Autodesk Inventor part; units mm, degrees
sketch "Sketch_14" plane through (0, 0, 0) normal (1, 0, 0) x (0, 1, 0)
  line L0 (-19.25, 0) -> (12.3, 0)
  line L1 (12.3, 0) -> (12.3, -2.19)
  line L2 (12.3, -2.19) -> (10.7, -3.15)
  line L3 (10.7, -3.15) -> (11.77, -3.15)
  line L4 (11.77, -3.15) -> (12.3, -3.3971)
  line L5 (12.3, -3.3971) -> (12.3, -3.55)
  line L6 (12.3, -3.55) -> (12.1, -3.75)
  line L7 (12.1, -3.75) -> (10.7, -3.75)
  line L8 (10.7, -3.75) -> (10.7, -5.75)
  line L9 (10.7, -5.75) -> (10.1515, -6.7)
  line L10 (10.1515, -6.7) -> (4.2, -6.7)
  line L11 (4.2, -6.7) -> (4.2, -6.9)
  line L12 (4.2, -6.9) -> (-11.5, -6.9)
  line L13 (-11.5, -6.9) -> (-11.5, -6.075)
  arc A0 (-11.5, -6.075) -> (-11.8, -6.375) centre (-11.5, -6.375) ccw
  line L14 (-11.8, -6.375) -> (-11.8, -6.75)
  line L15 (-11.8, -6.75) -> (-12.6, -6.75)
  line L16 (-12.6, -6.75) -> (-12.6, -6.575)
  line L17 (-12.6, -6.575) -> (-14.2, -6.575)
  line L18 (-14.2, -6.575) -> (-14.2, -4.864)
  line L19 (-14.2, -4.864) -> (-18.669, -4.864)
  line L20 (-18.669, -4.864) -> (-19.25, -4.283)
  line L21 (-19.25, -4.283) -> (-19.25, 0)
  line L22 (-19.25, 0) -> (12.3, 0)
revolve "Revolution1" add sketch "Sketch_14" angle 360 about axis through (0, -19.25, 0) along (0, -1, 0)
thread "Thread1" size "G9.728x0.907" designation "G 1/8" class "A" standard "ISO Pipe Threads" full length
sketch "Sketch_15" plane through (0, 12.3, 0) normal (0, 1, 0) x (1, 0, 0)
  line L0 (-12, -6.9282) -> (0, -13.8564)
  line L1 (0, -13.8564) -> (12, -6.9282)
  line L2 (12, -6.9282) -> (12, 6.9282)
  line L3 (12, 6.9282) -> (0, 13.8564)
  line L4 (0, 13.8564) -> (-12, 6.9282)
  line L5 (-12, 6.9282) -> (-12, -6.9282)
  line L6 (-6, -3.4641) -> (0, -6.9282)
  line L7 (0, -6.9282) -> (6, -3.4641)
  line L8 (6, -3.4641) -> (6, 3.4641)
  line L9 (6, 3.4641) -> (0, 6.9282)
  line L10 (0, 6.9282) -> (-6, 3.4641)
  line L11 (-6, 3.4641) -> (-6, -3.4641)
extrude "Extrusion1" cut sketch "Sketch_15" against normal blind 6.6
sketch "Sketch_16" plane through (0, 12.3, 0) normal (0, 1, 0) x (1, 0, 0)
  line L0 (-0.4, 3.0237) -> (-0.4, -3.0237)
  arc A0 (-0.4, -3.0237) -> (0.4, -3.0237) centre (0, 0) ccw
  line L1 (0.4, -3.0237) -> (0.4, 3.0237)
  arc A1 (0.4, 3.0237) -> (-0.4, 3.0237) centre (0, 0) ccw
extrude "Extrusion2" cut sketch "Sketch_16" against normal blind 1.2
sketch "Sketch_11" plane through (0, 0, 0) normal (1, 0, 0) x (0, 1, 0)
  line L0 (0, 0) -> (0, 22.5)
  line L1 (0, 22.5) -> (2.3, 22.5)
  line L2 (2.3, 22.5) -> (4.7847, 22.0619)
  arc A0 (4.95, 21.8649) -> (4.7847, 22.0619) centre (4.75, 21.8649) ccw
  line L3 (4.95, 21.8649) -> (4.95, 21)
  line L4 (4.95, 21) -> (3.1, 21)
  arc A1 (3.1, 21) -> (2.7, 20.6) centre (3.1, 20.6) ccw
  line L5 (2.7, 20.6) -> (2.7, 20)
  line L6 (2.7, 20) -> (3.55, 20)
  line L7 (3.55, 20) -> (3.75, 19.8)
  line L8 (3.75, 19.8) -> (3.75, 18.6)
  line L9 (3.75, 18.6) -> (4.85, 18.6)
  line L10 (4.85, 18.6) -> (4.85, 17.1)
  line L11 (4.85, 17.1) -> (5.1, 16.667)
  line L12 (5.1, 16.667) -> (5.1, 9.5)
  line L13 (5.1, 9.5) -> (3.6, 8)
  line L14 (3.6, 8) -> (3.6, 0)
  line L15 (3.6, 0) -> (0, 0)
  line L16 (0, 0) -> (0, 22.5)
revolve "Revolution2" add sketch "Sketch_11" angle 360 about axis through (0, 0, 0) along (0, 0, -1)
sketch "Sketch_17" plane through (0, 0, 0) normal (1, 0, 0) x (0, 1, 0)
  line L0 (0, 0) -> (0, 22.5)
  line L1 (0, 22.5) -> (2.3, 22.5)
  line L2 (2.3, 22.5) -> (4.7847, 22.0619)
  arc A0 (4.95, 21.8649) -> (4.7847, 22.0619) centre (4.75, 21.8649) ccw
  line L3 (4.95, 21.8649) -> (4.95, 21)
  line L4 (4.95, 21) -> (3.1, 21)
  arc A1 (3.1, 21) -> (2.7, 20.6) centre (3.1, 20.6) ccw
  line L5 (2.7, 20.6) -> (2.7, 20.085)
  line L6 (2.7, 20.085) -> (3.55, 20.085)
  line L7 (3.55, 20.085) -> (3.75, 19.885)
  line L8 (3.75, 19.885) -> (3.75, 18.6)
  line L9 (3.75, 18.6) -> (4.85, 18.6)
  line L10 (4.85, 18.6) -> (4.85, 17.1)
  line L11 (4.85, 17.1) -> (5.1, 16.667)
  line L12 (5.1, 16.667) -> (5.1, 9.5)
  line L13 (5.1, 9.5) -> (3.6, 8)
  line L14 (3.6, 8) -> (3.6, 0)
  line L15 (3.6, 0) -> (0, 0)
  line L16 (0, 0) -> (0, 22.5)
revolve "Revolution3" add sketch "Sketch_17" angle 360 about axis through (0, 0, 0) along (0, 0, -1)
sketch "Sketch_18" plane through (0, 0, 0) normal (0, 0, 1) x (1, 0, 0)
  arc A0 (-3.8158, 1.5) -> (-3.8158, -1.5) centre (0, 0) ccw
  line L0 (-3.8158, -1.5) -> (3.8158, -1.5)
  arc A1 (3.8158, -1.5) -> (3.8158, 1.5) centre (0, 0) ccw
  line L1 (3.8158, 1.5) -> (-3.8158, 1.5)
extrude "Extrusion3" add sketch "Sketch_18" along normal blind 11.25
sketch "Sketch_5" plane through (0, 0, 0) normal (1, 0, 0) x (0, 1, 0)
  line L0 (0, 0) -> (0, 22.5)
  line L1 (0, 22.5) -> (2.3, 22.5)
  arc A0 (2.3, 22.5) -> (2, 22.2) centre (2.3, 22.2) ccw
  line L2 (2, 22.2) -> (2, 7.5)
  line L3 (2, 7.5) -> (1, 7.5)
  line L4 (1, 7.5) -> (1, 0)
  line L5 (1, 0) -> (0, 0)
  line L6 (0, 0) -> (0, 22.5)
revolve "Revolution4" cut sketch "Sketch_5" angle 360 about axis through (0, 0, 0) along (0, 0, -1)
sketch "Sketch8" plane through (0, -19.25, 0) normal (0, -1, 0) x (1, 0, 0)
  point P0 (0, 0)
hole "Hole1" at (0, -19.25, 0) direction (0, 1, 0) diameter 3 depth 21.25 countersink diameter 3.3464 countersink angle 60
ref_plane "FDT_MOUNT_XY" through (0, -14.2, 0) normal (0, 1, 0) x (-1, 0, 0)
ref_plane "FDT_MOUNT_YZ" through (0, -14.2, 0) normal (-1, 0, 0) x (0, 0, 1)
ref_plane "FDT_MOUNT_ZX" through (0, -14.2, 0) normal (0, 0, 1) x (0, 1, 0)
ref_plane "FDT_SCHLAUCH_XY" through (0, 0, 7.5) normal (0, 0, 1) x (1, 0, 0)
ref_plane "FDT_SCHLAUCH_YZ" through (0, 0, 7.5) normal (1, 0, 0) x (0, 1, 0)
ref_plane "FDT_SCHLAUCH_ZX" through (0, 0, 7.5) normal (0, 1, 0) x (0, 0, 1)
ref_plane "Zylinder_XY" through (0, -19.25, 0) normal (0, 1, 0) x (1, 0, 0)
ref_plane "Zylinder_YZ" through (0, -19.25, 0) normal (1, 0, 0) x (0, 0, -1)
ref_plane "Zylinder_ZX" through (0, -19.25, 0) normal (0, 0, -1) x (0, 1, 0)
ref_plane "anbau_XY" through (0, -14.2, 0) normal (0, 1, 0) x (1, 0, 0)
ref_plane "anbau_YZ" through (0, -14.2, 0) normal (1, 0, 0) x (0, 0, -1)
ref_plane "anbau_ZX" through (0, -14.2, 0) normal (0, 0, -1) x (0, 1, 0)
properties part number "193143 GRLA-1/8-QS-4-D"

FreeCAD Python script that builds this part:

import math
import FreeCAD as App
import Part
import Sketcher
Q = App.Units.Quantity


def add_polygon(sketch, points):
    """Adds a closed chain of lines whose ends are joined by coincident constraints."""
    first, n = sketch.GeometryCount, len(points)
    for a, b in zip(points, points[1:] + points[:1]):
        sketch.addGeometry(Part.LineSegment(App.Vector(*a, 0), App.Vector(*b, 0)), False)
    for i in range(n):
        sketch.addConstraint(Sketcher.Constraint("Coincident", first + i, 2, first + (i + 1) % n, 1))

doc = App.newDocument("Part")
body = doc.addObject("PartDesign::Body", "Body")

# Sketch on YZ plane
sketch1 = body.newObject("Sketcher::SketchObject", "Sketch")
sketch1.AttachmentSupport = (doc.getObject("YZ_Plane"), [""])
sketch1.MapMode = "FlatFace"
sketch1.addGeometry([
    Part.LineSegment(App.Vector(12.3, 0, 0), App.Vector(-19.25, 0, 0)),  # 0
    Part.LineSegment(App.Vector(-19.25, 0, 0), App.Vector(-19.25, -4.28, 0)),  # 1
    Part.LineSegment(App.Vector(-19.25, -4.28, 0), App.Vector(-18.67, -4.86, 0)),  # 2
    Part.LineSegment(App.Vector(-18.67, -4.86, 0), App.Vector(-14.2, -4.86, 0)),  # 3
    Part.LineSegment(App.Vector(-14.2, -4.86, 0), App.Vector(-14.2, -6.58, 0)),  # 4
    Part.LineSegment(App.Vector(-14.2, -6.58, 0), App.Vector(-12.6, -6.58, 0)),  # 5
    Part.LineSegment(App.Vector(-12.6, -6.58, 0), App.Vector(-12.6, -6.75, 0)),  # 6
    Part.LineSegment(App.Vector(-12.6, -6.75, 0), App.Vector(-11.8, -6.75, 0)),  # 7
    Part.LineSegment(App.Vector(-11.8, -6.75, 0), App.Vector(-11.8, -6.38, 0)),  # 8
    Part.ArcOfCircle(Part.Circle(App.Vector(-11.5, -6.38, 0), App.Vector(0, 0, 1), 0.3), math.radians(90), math.radians(180)),  # 9
    Part.LineSegment(App.Vector(-11.5, -6.08, 0), App.Vector(-11.5, -6.9, 0)),  # 10
    Part.LineSegment(App.Vector(-11.5, -6.9, 0), App.Vector(4.2, -6.9, 0)),  # 11
    Part.LineSegment(App.Vector(4.2, -6.9, 0), App.Vector(4.2, -6.7, 0)),  # 12
    Part.LineSegment(App.Vector(4.2, -6.7, 0), App.Vector(10.15, -6.7, 0)),  # 13
    Part.LineSegment(App.Vector(10.15, -6.7, 0), App.Vector(10.7, -5.75, 0)),  # 14
    Part.LineSegment(App.Vector(10.7, -5.75, 0), App.Vector(10.7, -3.75, 0)),  # 15
    Part.LineSegment(App.Vector(10.7, -3.75, 0), App.Vector(12.1, -3.75, 0)),  # 16
    Part.LineSegment(App.Vector(12.1, -3.75, 0), App.Vector(12.3, -3.55, 0)),  # 17
    Part.LineSegment(App.Vector(12.3, -3.55, 0), App.Vector(12.3, -3.4, 0)),  # 18
    Part.LineSegment(App.Vector(12.3, -3.4, 0), App.Vector(11.77, -3.15, 0)),  # 19
    Part.LineSegment(App.Vector(11.77, -3.15, 0), App.Vector(10.7, -3.15, 0)),  # 20
    Part.LineSegment(App.Vector(10.7, -3.15, 0), App.Vector(12.3, -2.19, 0)),  # 21
    Part.LineSegment(App.Vector(12.3, -2.19, 0), App.Vector(12.3, 0, 0)),  # 22
], False)
sketch1.addConstraint([
    Sketcher.Constraint("Coincident", 0, 2, 1, 1),
    Sketcher.Constraint("Coincident", 1, 2, 2, 1),
    Sketcher.Constraint("Coincident", 2, 2, 3, 1),
    Sketcher.Constraint("Coincident", 3, 2, 4, 1),
    Sketcher.Constraint("Coincident", 4, 2, 5, 1),
    Sketcher.Constraint("Coincident", 5, 2, 6, 1),
    Sketcher.Constraint("Coincident", 6, 2, 7, 1),
    Sketcher.Constraint("Coincident", 7, 2, 8, 1),
    Sketcher.Constraint("Tangent", 8, 2, 9, 2),
    Sketcher.Constraint("Coincident", 9, 1, 10, 1),
    Sketcher.Constraint("Coincident", 10, 2, 11, 1),
    Sketcher.Constraint("Coincident", 11, 2, 12, 1),
    Sketcher.Constraint("Coincident", 12, 2, 13, 1),
    Sketcher.Constraint("Coincident", 13, 2, 14, 1),
    Sketcher.Constraint("Coincident", 14, 2, 15, 1),
    Sketcher.Constraint("Coincident", 15, 2, 16, 1),
    Sketcher.Constraint("Coincident", 16, 2, 17, 1),
    Sketcher.Constraint("Coincident", 17, 2, 18, 1),
    Sketcher.Constraint("Coincident", 18, 2, 19, 1),
    Sketcher.Constraint("Coincident", 19, 2, 20, 1),
    Sketcher.Constraint("Coincident", 20, 2, 21, 1),
    Sketcher.Constraint("Coincident", 21, 2, 22, 1),
    Sketcher.Constraint("Coincident", 22, 2, 0, 1),
    Sketcher.Constraint("Horizontal", 0),
    Sketcher.Constraint("Vertical", 1),
    Sketcher.Constraint("Horizontal", 3),
    Sketcher.Constraint("Vertical", 4),
    Sketcher.Constraint("Horizontal", 5),
    Sketcher.Constraint("Vertical", 6),
    Sketcher.Constraint("Horizontal", 7),
    Sketcher.Constraint("Vertical", 8),
    Sketcher.Constraint("Vertical", 10),
    Sketcher.Constraint("Horizontal", 11),
    Sketcher.Constraint("Vertical", 12),
    Sketcher.Constraint("Horizontal", 13),
    Sketcher.Constraint("Vertical", 15),
    Sketcher.Constraint("Horizontal", 16),
    Sketcher.Constraint("Vertical", 18),
    Sketcher.Constraint("Horizontal", 20),
    Sketcher.Constraint("Vertical", 22),
    Sketcher.Constraint("PointOnObject", 0, 2, -1),
    Sketcher.Constraint("Perpendicular", 2, 17),
    Sketcher.Constraint("Vertical", 15, 2, 20, 2),
    Sketcher.Constraint("Vertical", 18, 2, 21, 2),
    Sketcher.Constraint("Radius", 9, Q("0.3 mm")),
    Sketcher.Constraint("DistanceY", 15, 1, 15, 2, Q("2 mm")),
    Sketcher.Constraint("Angle", 2, Q("-45 deg")),
    Sketcher.Constraint("Angle", 14, Q("59.9992 deg")),
    Sketcher.Constraint("DistanceX", 5, 1, 5, 2, Q("1.6 mm")),
    Sketcher.Constraint("DistanceX", 7, 1, 7, 2, Q("0.8 mm")),
    Sketcher.Constraint("DistanceX", 11, 1, 11, 2, Q("15.7 mm")),
    Sketcher.Constraint("DistanceX", 16, 1, 16, 2, Q("1.4 mm")),
    Sketcher.Constraint("DistanceY", 12, 1, 12, 2, Q("0.2 mm")),
    Sketcher.Constraint("DistanceX", 7, 2, 11, 2, Q("16 mm")),
    Sketcher.Constraint("DistanceX", 0, 2, 0, 1, Q("31.55 mm")),
    Sketcher.Constraint("DistanceX", 20, 2, 20, 1, Q("1.07 mm")),
    Sketcher.Constraint("DistanceY", 22, 1, 22, 2, Q("2.19 mm")),
    Sketcher.Constraint("DistanceX", 9, 3, -1, 1, Q("11.5 mm")),
    Sketcher.Constraint("DistanceY", 10, 2, -1, 1, Q("6.9 mm")),
    Sketcher.Constraint("DistanceX", -1, 1, 14, 2, Q("10.7 mm")),
    Sketcher.Constraint("DistanceX", -1, 1, 17, 2, Q("12.3 mm")),
    Sketcher.Constraint("DistanceY", 4, 2, 9, 3, Q("0.2 mm")),
    Sketcher.Constraint("DistanceY", 17, 2, 19, 2, Q("0.4 mm")),
    Sketcher.Constraint("DistanceX", 3, 1, 3, 2, Q("4.469 mm")),
    Sketcher.Constraint("DistanceY", 1, 2, 1, 1, Q("4.283 mm")),
    Sketcher.Constraint("DistanceY", 4, 2, 4, 1, Q("1.711 mm")),
    Sketcher.Constraint("DistanceY", 6, 2, 6, 1, Q("0.175 mm")),
    Sketcher.Constraint("DistanceY", 18, 1, 18, 2, Q("0.153 mm")),
    Sketcher.Constraint("DistanceY", 14, 2, -1, 1, Q("5.75 mm")),
])
revolution = body.newObject("PartDesign::Revolution", "Revolution")
revolution.Profile = sketch1
revolution.ReferenceAxis = (sketch1, ["H_Axis"])
revolution.Angle = 360

# Sketch on XZ plane
sketch2 = body.newObject("Sketcher::SketchObject", "Sketch001")
sketch2.AttachmentSupport = (doc.getObject("XZ_Plane"), [""])
sketch2.MapMode = "FlatFace"
sketch2.AttachmentOffset = App.Placement(App.Vector(0, 0, -12.3), App.Rotation())
add_polygon(sketch2, [(-12, -7), (-12, 7), (0, 14), (12, 7), (12, -7), (0, -14)])  # lines 0-5
add_polygon(sketch2, [(0, 7), (-6, 3), (-6, -3), (0, -7), (6, -3), (6, 3)])  # lines 6-11
sketch2.addConstraint([
    Sketcher.Constraint("Vertical", 0),
    Sketcher.Constraint("Vertical", 3),
    Sketcher.Constraint("Vertical", 7),
    Sketcher.Constraint("Vertical", 10),
    Sketcher.Constraint("Symmetric", 0, 2, 3, 2, -1, 1),
    Sketcher.Constraint("Symmetric", 1, 2, 4, 2, -1, 1),
    Sketcher.Constraint("Symmetric", 6, 2, 9, 2, -1, 1),
    Sketcher.Constraint("Symmetric", 8, 2, 11, 2, -1, 1),
    Sketcher.Constraint("PointOnObject", 1, 2, -2),
    Sketcher.Constraint("PointOnObject", 8, 2, -2),
    Sketcher.Constraint("Parallel", 2, 5),
    Sketcher.Constraint("Parallel", 4, 6),
    Sketcher.Constraint("Parallel", 5, 8),
    Sketcher.Constraint("Parallel", 8, 11),
    Sketcher.Constraint("Horizontal", 0, 2, 2, 2),
    Sketcher.Constraint("Horizontal", 5, 2, 8, 2),
    Sketcher.Constraint("Angle", 1, Q("30 deg")),
    Sketcher.Constraint("DistanceX", 0, 2, -1, 1, Q("12 mm")),
    Sketcher.Constraint("DistanceX", 6, 2, -1, 1, Q("6 mm")),
    Sketcher.Constraint("DistanceY", 0, 1, 0, 2, Q("13.8564 mm")),
])
pocket1 = body.newObject("PartDesign::Pocket", "Pocket")
pocket1.Profile = sketch2
pocket1.Length = 6.6
pocket1.Reversed = True

# Sketch on XZ plane
sketch3 = body.newObject("Sketcher::SketchObject", "Sketch002")
sketch3.AttachmentSupport = (doc.getObject("XZ_Plane"), [""])
sketch3.MapMode = "FlatFace"
sketch3.AttachmentOffset = App.Placement(App.Vector(0, 0, -12.3), App.Rotation())
sketch3.addGeometry([
    Part.ArcOfCircle(Part.Circle(App.Vector(0, 0, 0), App.Vector(0, 0, 1), 3.1), math.radians(-97.54), math.radians(-82.46)),
    Part.LineSegment(App.Vector(-0.4, -3, 0), App.Vector(-0.4, 3, 0)),
    Part.ArcOfCircle(Part.Circle(App.Vector(0, 0, 0), App.Vector(0, 0, 1), 3.1), math.radians(82.46), math.radians(97.54)),
    Part.LineSegment(App.Vector(0.4, 3, 0), App.Vector(0.4, -3, 0)),
], False)
sketch3.addConstraint([
    Sketcher.Constraint("Coincident", 0, 1, 1, 1),
    Sketcher.Constraint("Coincident", 1, 2, 2, 2),
    Sketcher.Constraint("Coincident", 2, 1, 3, 1),
    Sketcher.Constraint("Coincident", 3, 2, 0, 2),
    Sketcher.Constraint("Vertical", 1),
    Sketcher.Constraint("Vertical", 3),
    Sketcher.Constraint("Coincident", 0, 3, -1, 1),
    Sketcher.Constraint("Coincident", 2, 3, -1, 1),
    Sketcher.Constraint("Equal", 0, 2),
    Sketcher.Constraint("Horizontal", 1, 2, 2, 1),
    Sketcher.Constraint("Radius", 0, Q("3.05 mm")),
    Sketcher.Constraint("DistanceX", 0, 1, -1, 1, Q("0.4 mm")),
])
pocket2 = body.newObject("PartDesign::Pocket", "Pocket001")
pocket2.Profile = sketch3
pocket2.Length = 1.2
pocket2.Reversed = True

# Sketch on YZ plane
sketch4 = body.newObject("Sketcher::SketchObject", "Sketch003")
sketch4.AttachmentSupport = (doc.getObject("YZ_Plane"), [""])
sketch4.MapMode = "FlatFace"
sketch4.addGeometry([
    Part.LineSegment(App.Vector(0, 22.5, 0), App.Vector(0, 0, 0)),  # 0
    Part.LineSegment(App.Vector(0, 0, 0), App.Vector(3.6, 0, 0)),  # 1
    Part.LineSegment(App.Vector(3.6, 0, 0), App.Vector(3.6, 8, 0)),  # 2
    Part.LineSegment(App.Vector(3.6, 8, 0), App.Vector(5.1, 9.5, 0)),  # 3
    Part.LineSegment(App.Vector(5.1, 9.5, 0), App.Vector(5.1, 16.67, 0)),  # 4
    Part.LineSegment(App.Vector(5.1, 16.67, 0), App.Vector(4.85, 17.1, 0)),  # 5
    Part.LineSegment(App.Vector(4.85, 17.1, 0), App.Vector(4.85, 18.6, 0)),  # 6
    Part.LineSegment(App.Vector(4.85, 18.6, 0), App.Vector(3.75, 18.6, 0)),  # 7
    Part.LineSegment(App.Vector(3.75, 18.6, 0), App.Vector(3.75, 19.8, 0)),  # 8
    Part.LineSegment(App.Vector(3.75, 19.8, 0), App.Vector(3.55, 20, 0)),  # 9
    Part.LineSegment(App.Vector(3.55, 20, 0), App.Vector(2.7, 20, 0)),  # 10
    Part.LineSegment(App.Vector(2.7, 20, 0), App.Vector(2.7, 20.6, 0)),  # 11
    Part.ArcOfCircle(Part.Circle(App.Vector(3.1, 20.6, 0), App.Vector(0, 0, 1), 0.4), math.radians(90), math.radians(180)),  # 12
    Part.LineSegment(App.Vector(3.1, 21, 0), App.Vector(4.95, 21, 0)),  # 13
    Part.LineSegment(App.Vector(4.95, 21, 0), App.Vector(4.95, 21.86, 0)),  # 14
    Part.ArcOfCircle(Part.Circle(App.Vector(4.75, 21.86, 0), App.Vector(0, 0, 1), 0.2), math.radians(0), math.radians(80)),  # 15
    Part.LineSegment(App.Vector(4.78, 22.06, 0), App.Vector(2.3, 22.5, 0)),  # 16
    Part.LineSegment(App.Vector(2.3, 22.5, 0), App.Vector(0, 22.5, 0)),  # 17
], False)
sketch4.addConstraint([
    Sketcher.Constraint("Coincident", 0, 2, 1, 1),
    Sketcher.Constraint("Coincident", 1, 2, 2, 1),
    Sketcher.Constraint("Coincident", 2, 2, 3, 1),
    Sketcher.Constraint("Coincident", 3, 2, 4, 1),
    Sketcher.Constraint("Coincident", 4, 2, 5, 1),
    Sketcher.Constraint("Coincident", 5, 2, 6, 1),
    Sketcher.Constraint("Coincident", 6, 2, 7, 1),
    Sketcher.Constraint("Coincident", 7, 2, 8, 1),
    Sketcher.Constraint("Coincident", 8, 2, 9, 1),
    Sketcher.Constraint("Coincident", 9, 2, 10, 1),
    Sketcher.Constraint("Coincident", 10, 2, 11, 1),
    Sketcher.Constraint("Tangent", 11, 2, 12, 2),
    Sketcher.Constraint("Tangent", 12, 1, 13, 1),
    Sketcher.Constraint("Coincident", 13, 2, 14, 1),
    Sketcher.Constraint("Tangent", 14, 2, 15, 1),
    Sketcher.Constraint("Tangent", 15, 2, 16, 1),
    Sketcher.Constraint("Coincident", 16, 2, 17, 1),
    Sketcher.Constraint("Coincident", 17, 2, 0, 1),
    Sketcher.Constraint("Vertical", 0),
    Sketcher.Constraint("Horizontal", 1),
    Sketcher.Constraint("Vertical", 2),
    Sketcher.Constraint("Vertical", 4),
    Sketcher.Constraint("Vertical", 6),
    Sketcher.Constraint("Horizontal", 7),
    Sketcher.Constraint("Vertical", 8),
    Sketcher.Constraint("Horizontal", 10),
    Sketcher.Constraint("Vertical", 11),
    Sketcher.Constraint("Horizontal", 13),
    Sketcher.Constraint("Vertical", 14),
    Sketcher.Constraint("Horizontal", 17),
    Sketcher.Constraint("Coincident", 0, 2, -1, 1),
    Sketcher.Constraint("Perpendicular", 3, 9),
    Sketcher.Constraint("Radius", 12, Q("0.4 mm")),
    Sketcher.Constraint("Radius", 15, Q("0.2 mm")),
    Sketcher.Constraint("DistanceY", 2, 1, 2, 2, Q("8 mm")),
    Sketcher.Constraint("Angle", 3, Q("45 deg")),
    Sketcher.Constraint("Angle", 5, Q("120.0007 deg")),
    Sketcher.Constraint("Angle", 16, Q("170.0004 deg")),
    Sketcher.Constraint("DistanceX", 1, 1, 1, 2, Q("3.6 mm")),
    Sketcher.Constraint("DistanceX", 7, 2, 7, 1, Q("1.1 mm")),
    Sketcher.Constraint("DistanceX", 17, 2, 17, 1, Q("2.3 mm")),
    Sketcher.Constraint("DistanceY", 0, 2, 0, 1, Q("22.5 mm")),
    Sketcher.Constraint("DistanceY", 6, 1, 6, 2, Q("1.5 mm")),
    Sketcher.Constraint("DistanceY", 8, 1, 8, 2, Q("1.2 mm")),
    Sketcher.Constraint("DistanceY", 11, 1, 11, 2, Q("0.6 mm")),
    Sketcher.Constraint("DistanceY", -1, 1, 9, 2, Q("20 mm")),
    Sketcher.Constraint("DistanceX", 12, 3, 3, 2, Q("2 mm")),
    Sketcher.Constraint("DistanceY", 6, 2, 12, 3, Q("2 mm")),
    Sketcher.Constraint("DistanceX", 7, 2, 15, 3, Q("1 mm")),
    Sketcher.Constraint("Distance", 5, Q("0.5 mm")),
    Sketcher.Constraint("DistanceX", -1, 1, 12, 3, Q("3.1 mm")),
])
revolution2 = body.newObject("PartDesign::Revolution", "Revolution001")
revolution2.Profile = sketch4
revolution2.ReferenceAxis = (sketch4, ["V_Axis"])
revolution2.Angle = 360

# Sketch on YZ plane
sketch5 = body.newObject("Sketcher::SketchObject", "Sketch004")
sketch5.AttachmentSupport = (doc.getObject("YZ_Plane"), [""])
sketch5.MapMode = "FlatFace"
sketch5.addGeometry([
    Part.LineSegment(App.Vector(0, 22.5, 0), App.Vector(0, 0, 0)),  # 0
    Part.LineSegment(App.Vector(0, 0, 0), App.Vector(3.6, 0, 0)),  # 1
    Part.LineSegment(App.Vector(3.6, 0, 0), App.Vector(3.6, 8, 0)),  # 2
    Part.LineSegment(App.Vector(3.6, 8, 0), App.Vector(5.1, 9.5, 0)),  # 3
    Part.LineSegment(App.Vector(5.1, 9.5, 0), App.Vector(5.1, 16.67, 0)),  # 4
    Part.LineSegment(App.Vector(5.1, 16.67, 0), App.Vector(4.85, 17.1, 0)),  # 5
    Part.LineSegment(App.Vector(4.85, 17.1, 0), App.Vector(4.85, 18.6, 0)),  # 6
    Part.LineSegment(App.Vector(4.85, 18.6, 0), App.Vector(3.75, 18.6, 0)),  # 7
    Part.LineSegment(App.Vector(3.75, 18.6, 0), App.Vector(3.75, 19.89, 0)),  # 8
    Part.LineSegment(App.Vector(3.75, 19.89, 0), App.Vector(3.55, 20.09, 0)),  # 9
    Part.LineSegment(App.Vector(3.55, 20.09, 0), App.Vector(2.7, 20.09, 0)),  # 10
    Part.LineSegment(App.Vector(2.7, 20.09, 0), App.Vector(2.7, 20.6, 0)),  # 11
    Part.ArcOfCircle(Part.Circle(App.Vector(3.1, 20.6, 0), App.Vector(0, 0, 1), 0.4), math.radians(90), math.radians(180)),  # 12
    Part.LineSegment(App.Vector(3.1, 21, 0), App.Vector(4.95, 21, 0)),  # 13
    Part.LineSegment(App.Vector(4.95, 21, 0), App.Vector(4.95, 21.86, 0)),  # 14
    Part.ArcOfCircle(Part.Circle(App.Vector(4.75, 21.86, 0), App.Vector(0, 0, 1), 0.2), math.radians(0), math.radians(80)),  # 15
    Part.LineSegment(App.Vector(4.78, 22.06, 0), App.Vector(2.3, 22.5, 0)),  # 16
    Part.LineSegment(App.Vector(2.3, 22.5, 0), App.Vector(0, 22.5, 0)),  # 17
], False)
sketch5.addConstraint([
    Sketcher.Constraint("Coincident", 0, 2, 1, 1),
    Sketcher.Constraint("Coincident", 1, 2, 2, 1),
    Sketcher.Constraint("Coincident", 2, 2, 3, 1),
    Sketcher.Constraint("Coincident", 3, 2, 4, 1),
    Sketcher.Constraint("Coincident", 4, 2, 5, 1),
    Sketcher.Constraint("Coincident", 5, 2, 6, 1),
    Sketcher.Constraint("Coincident", 6, 2, 7, 1),
    Sketcher.Constraint("Coincident", 7, 2, 8, 1),
    Sketcher.Constraint("Coincident", 8, 2, 9, 1),
    Sketcher.Constraint("Coincident", 9, 2, 10, 1),
    Sketcher.Constraint("Coincident", 10, 2, 11, 1),
    Sketcher.Constraint("Tangent", 11, 2, 12, 2),
    Sketcher.Constraint("Tangent", 12, 1, 13, 1),
    Sketcher.Constraint("Coincident", 13, 2, 14, 1),
    Sketcher.Constraint("Tangent", 14, 2, 15, 1),
    Sketcher.Constraint("Tangent", 15, 2, 16, 1),
    Sketcher.Constraint("Coincident", 16, 2, 17, 1),
    Sketcher.Constraint("Coincident", 17, 2, 0, 1),
    Sketcher.Constraint("Vertical", 0),
    Sketcher.Constraint("Horizontal", 1),
    Sketcher.Constraint("Vertical", 2),
    Sketcher.Constraint("Vertical", 4),
    Sketcher.Constraint("Vertical", 6),
    Sketcher.Constraint("Horizontal", 7),
    Sketcher.Constraint("Vertical", 8),
    Sketcher.Constraint("Horizontal", 10),
    Sketcher.Constraint("Vertical", 11),
    Sketcher.Constraint("Horizontal", 13),
    Sketcher.Constraint("Vertical", 14),
    Sketcher.Constraint("Horizontal", 17),
    Sketcher.Constraint("Coincident", 0, 2, -1, 1),
    Sketcher.Constraint("Perpendicular", 3, 9),
    Sketcher.Constraint("Radius", 12, Q("0.4 mm")),
    Sketcher.Constraint("Radius", 15, Q("0.2 mm")),
    Sketcher.Constraint("DistanceY", 2, 1, 2, 2, Q("8 mm")),
    Sketcher.Constraint("Angle", 3, Q("45 deg")),
    Sketcher.Constraint("Angle", 5, Q("120.0007 deg")),
    Sketcher.Constraint("Angle", 16, Q("170.0004 deg")),
    Sketcher.Constraint("DistanceX", 1, 1, 1, 2, Q("3.6 mm")),
    Sketcher.Constraint("DistanceX", 7, 2, 7, 1, Q("1.1 mm")),
    Sketcher.Constraint("DistanceX", 17, 2, 17, 1, Q("2.3 mm")),
    Sketcher.Constraint("DistanceY", 0, 2, 0, 1, Q("22.5 mm")),
    Sketcher.Constraint("DistanceY", 6, 1, 6, 2, Q("1.5 mm")),
    Sketcher.Constraint("DistanceY", -1, 1, 12, 1, Q("21 mm")),
    Sketcher.Constraint("DistanceX", 12, 3, 3, 2, Q("2 mm")),
    Sketcher.Constraint("DistanceY", 6, 2, 12, 3, Q("2 mm")),
    Sketcher.Constraint("DistanceX", 7, 2, 15, 3, Q("1 mm")),
    Sketcher.Constraint("Distance", 5, Q("0.5 mm")),
    Sketcher.Constraint("DistanceX", 10, 2, 10, 1, Q("0.85 mm")),
    Sketcher.Constraint("DistanceX", -1, 1, 12, 3, Q("3.1 mm")),
    Sketcher.Constraint("DistanceY", 8, 1, 8, 2, Q("1.285 mm")),
])
revolution3 = body.newObject("PartDesign::Revolution", "Revolution002")
revolution3.Profile = sketch5
revolution3.ReferenceAxis = (sketch5, ["V_Axis"])
revolution3.Angle = 360

# Sketch on XY plane
sketch6 = body.newObject("Sketcher::SketchObject", "Sketch005")
sketch6.AttachmentSupport = (doc.getObject("XY_Plane"), [""])
sketch6.MapMode = "FlatFace"
sketch6.addGeometry([
    Part.LineSegment(App.Vector(3.8, 1.5, 0), App.Vector(-3.8, 1.5, 0)),
    Part.ArcOfCircle(Part.Circle(App.Vector(0, 0, 0), App.Vector(0, 0, 1), 4.1), math.radians(159), math.radians(201)),
    Part.LineSegment(App.Vector(-3.8, -1.5, 0), App.Vector(3.8, -1.5, 0)),
    Part.ArcOfCircle(Part.Circle(App.Vector(0, 0, 0), App.Vector(0, 0, 1), 4.1), math.radians(-21), math.radians(21)),
], False)
sketch6.addConstraint([
    Sketcher.Constraint("Coincident", 0, 2, 1, 1),
    Sketcher.Constraint("Coincident", 1, 2, 2, 1),
    Sketcher.Constraint("Coincident", 2, 2, 3, 1),
    Sketcher.Constraint("Coincident", 3, 2, 0, 1),
    Sketcher.Constraint("Horizontal", 0),
    Sketcher.Constraint("Horizontal", 2),
    Sketcher.Constraint("Coincident", 1, 3, -1, 1),
    Sketcher.Constraint("Coincident", 3, 3, -1, 1),
    Sketcher.Constraint("Equal", 1, 3),
    Sketcher.Constraint("Vertical", 0, 2, 1, 2),
    Sketcher.Constraint("Radius", 1, Q("4.1 mm")),
    Sketcher.Constraint("DistanceY", 1, 2, 0, 2, Q("3 mm")),
])
pad1 = body.newObject("PartDesign::Pad", "Pad")
pad1.Profile = sketch6
pad1.Length = 11.25

# Sketch on YZ plane
sketch7 = body.newObject("Sketcher::SketchObject", "Sketch006")
sketch7.AttachmentSupport = (doc.getObject("YZ_Plane"), [""])
sketch7.MapMode = "FlatFace"
sketch7.addGeometry([
    Part.LineSegment(App.Vector(0, 22.5, 0), App.Vector(0, 0, 0)),  # 0
    Part.LineSegment(App.Vector(0, 0, 0), App.Vector(1, 0, 0)),  # 1
    Part.LineSegment(App.Vector(1, 0, 0), App.Vector(1, 7.5, 0)),  # 2
    Part.LineSegment(App.Vector(1, 7.5, 0), App.Vector(2, 7.5, 0)),  # 3
    Part.LineSegment(App.Vector(2, 7.5, 0), App.Vector(2, 22.2, 0)),  # 4
    Part.ArcOfCircle(Part.Circle(App.Vector(2.3, 22.2, 0), App.Vector(0, 0, 1), 0.3), math.radians(90), math.radians(180)),  # 5
    Part.LineSegment(App.Vector(2.3, 22.5, 0), App.Vector(0, 22.5, 0)),  # 6
], False)
sketch7.addConstraint([
    Sketcher.Constraint("Coincident", 0, 2, 1, 1),
    Sketcher.Constraint("Coincident", 1, 2, 2, 1),
    Sketcher.Constraint("Coincident", 2, 2, 3, 1),
    Sketcher.Constraint("Coincident", 3, 2, 4, 1),
    Sketcher.Constraint("Tangent", 4, 2, 5, 2),
    Sketcher.Constraint("Tangent", 5, 1, 6, 1),
    Sketcher.Constraint("Coincident", 6, 2, 0, 1),
    Sketcher.Constraint("Vertical", 0),
    Sketcher.Constraint("Horizontal", 1),
    Sketcher.Constraint("Vertical", 2),
    Sketcher.Constraint("Horizontal", 3),
    Sketcher.Constraint("Vertical", 4),
    Sketcher.Constraint("Horizontal", 6),
    Sketcher.Constraint("Coincident", 0, 2, -1, 1),
    Sketcher.Constraint("Equal", 1, 3),
    Sketcher.Constraint("Radius", 5, Q("0.3 mm")),
    Sketcher.Constraint("DistanceX", 1, 1, 1, 2, Q("1 mm")),
    Sketcher.Constraint("DistanceY", 0, 2, 0, 1, Q("22.5 mm")),
    Sketcher.Constraint("DistanceY", 2, 1, 2, 2, Q("7.5 mm")),
])
groove = body.newObject("PartDesign::Groove", "Groove")
groove.Profile = sketch7
groove.ReferenceAxis = (sketch7, ["V_Axis"])
groove.Angle = 360

# Sketch on XZ plane
sketch8 = body.newObject("Sketcher::SketchObject", "Sketch007")
sketch8.AttachmentSupport = (doc.getObject("XZ_Plane"), [""])
sketch8.MapMode = "FlatFace"
sketch8.AttachmentOffset = App.Placement(App.Vector(0, 0, 19.25), App.Rotation())
sketch8.addGeometry(Part.Circle(App.Vector(0, 0, 0), App.Vector(0, 0, 1), 1.5), False)
sketch8.addConstraint([
    Sketcher.Constraint("Coincident", 0, 3, -1, 1),
    Sketcher.Constraint("Diameter", 0, Q("3 mm")),
])
doc.recompute()
hole = body.newObject("PartDesign::Hole", "Hole")
hole.Profile = sketch8
hole.ThreadType = "None"
hole.Diameter = 3
hole.DepthType = "Dimension"
hole.Depth = 21.25
hole.DrillPoint = "Flat"
hole.HoleCutType = "Countersink"
hole.HoleCutDiameter = 3.3464
hole.HoleCutCountersinkAngle = 60

doc.recompute()
